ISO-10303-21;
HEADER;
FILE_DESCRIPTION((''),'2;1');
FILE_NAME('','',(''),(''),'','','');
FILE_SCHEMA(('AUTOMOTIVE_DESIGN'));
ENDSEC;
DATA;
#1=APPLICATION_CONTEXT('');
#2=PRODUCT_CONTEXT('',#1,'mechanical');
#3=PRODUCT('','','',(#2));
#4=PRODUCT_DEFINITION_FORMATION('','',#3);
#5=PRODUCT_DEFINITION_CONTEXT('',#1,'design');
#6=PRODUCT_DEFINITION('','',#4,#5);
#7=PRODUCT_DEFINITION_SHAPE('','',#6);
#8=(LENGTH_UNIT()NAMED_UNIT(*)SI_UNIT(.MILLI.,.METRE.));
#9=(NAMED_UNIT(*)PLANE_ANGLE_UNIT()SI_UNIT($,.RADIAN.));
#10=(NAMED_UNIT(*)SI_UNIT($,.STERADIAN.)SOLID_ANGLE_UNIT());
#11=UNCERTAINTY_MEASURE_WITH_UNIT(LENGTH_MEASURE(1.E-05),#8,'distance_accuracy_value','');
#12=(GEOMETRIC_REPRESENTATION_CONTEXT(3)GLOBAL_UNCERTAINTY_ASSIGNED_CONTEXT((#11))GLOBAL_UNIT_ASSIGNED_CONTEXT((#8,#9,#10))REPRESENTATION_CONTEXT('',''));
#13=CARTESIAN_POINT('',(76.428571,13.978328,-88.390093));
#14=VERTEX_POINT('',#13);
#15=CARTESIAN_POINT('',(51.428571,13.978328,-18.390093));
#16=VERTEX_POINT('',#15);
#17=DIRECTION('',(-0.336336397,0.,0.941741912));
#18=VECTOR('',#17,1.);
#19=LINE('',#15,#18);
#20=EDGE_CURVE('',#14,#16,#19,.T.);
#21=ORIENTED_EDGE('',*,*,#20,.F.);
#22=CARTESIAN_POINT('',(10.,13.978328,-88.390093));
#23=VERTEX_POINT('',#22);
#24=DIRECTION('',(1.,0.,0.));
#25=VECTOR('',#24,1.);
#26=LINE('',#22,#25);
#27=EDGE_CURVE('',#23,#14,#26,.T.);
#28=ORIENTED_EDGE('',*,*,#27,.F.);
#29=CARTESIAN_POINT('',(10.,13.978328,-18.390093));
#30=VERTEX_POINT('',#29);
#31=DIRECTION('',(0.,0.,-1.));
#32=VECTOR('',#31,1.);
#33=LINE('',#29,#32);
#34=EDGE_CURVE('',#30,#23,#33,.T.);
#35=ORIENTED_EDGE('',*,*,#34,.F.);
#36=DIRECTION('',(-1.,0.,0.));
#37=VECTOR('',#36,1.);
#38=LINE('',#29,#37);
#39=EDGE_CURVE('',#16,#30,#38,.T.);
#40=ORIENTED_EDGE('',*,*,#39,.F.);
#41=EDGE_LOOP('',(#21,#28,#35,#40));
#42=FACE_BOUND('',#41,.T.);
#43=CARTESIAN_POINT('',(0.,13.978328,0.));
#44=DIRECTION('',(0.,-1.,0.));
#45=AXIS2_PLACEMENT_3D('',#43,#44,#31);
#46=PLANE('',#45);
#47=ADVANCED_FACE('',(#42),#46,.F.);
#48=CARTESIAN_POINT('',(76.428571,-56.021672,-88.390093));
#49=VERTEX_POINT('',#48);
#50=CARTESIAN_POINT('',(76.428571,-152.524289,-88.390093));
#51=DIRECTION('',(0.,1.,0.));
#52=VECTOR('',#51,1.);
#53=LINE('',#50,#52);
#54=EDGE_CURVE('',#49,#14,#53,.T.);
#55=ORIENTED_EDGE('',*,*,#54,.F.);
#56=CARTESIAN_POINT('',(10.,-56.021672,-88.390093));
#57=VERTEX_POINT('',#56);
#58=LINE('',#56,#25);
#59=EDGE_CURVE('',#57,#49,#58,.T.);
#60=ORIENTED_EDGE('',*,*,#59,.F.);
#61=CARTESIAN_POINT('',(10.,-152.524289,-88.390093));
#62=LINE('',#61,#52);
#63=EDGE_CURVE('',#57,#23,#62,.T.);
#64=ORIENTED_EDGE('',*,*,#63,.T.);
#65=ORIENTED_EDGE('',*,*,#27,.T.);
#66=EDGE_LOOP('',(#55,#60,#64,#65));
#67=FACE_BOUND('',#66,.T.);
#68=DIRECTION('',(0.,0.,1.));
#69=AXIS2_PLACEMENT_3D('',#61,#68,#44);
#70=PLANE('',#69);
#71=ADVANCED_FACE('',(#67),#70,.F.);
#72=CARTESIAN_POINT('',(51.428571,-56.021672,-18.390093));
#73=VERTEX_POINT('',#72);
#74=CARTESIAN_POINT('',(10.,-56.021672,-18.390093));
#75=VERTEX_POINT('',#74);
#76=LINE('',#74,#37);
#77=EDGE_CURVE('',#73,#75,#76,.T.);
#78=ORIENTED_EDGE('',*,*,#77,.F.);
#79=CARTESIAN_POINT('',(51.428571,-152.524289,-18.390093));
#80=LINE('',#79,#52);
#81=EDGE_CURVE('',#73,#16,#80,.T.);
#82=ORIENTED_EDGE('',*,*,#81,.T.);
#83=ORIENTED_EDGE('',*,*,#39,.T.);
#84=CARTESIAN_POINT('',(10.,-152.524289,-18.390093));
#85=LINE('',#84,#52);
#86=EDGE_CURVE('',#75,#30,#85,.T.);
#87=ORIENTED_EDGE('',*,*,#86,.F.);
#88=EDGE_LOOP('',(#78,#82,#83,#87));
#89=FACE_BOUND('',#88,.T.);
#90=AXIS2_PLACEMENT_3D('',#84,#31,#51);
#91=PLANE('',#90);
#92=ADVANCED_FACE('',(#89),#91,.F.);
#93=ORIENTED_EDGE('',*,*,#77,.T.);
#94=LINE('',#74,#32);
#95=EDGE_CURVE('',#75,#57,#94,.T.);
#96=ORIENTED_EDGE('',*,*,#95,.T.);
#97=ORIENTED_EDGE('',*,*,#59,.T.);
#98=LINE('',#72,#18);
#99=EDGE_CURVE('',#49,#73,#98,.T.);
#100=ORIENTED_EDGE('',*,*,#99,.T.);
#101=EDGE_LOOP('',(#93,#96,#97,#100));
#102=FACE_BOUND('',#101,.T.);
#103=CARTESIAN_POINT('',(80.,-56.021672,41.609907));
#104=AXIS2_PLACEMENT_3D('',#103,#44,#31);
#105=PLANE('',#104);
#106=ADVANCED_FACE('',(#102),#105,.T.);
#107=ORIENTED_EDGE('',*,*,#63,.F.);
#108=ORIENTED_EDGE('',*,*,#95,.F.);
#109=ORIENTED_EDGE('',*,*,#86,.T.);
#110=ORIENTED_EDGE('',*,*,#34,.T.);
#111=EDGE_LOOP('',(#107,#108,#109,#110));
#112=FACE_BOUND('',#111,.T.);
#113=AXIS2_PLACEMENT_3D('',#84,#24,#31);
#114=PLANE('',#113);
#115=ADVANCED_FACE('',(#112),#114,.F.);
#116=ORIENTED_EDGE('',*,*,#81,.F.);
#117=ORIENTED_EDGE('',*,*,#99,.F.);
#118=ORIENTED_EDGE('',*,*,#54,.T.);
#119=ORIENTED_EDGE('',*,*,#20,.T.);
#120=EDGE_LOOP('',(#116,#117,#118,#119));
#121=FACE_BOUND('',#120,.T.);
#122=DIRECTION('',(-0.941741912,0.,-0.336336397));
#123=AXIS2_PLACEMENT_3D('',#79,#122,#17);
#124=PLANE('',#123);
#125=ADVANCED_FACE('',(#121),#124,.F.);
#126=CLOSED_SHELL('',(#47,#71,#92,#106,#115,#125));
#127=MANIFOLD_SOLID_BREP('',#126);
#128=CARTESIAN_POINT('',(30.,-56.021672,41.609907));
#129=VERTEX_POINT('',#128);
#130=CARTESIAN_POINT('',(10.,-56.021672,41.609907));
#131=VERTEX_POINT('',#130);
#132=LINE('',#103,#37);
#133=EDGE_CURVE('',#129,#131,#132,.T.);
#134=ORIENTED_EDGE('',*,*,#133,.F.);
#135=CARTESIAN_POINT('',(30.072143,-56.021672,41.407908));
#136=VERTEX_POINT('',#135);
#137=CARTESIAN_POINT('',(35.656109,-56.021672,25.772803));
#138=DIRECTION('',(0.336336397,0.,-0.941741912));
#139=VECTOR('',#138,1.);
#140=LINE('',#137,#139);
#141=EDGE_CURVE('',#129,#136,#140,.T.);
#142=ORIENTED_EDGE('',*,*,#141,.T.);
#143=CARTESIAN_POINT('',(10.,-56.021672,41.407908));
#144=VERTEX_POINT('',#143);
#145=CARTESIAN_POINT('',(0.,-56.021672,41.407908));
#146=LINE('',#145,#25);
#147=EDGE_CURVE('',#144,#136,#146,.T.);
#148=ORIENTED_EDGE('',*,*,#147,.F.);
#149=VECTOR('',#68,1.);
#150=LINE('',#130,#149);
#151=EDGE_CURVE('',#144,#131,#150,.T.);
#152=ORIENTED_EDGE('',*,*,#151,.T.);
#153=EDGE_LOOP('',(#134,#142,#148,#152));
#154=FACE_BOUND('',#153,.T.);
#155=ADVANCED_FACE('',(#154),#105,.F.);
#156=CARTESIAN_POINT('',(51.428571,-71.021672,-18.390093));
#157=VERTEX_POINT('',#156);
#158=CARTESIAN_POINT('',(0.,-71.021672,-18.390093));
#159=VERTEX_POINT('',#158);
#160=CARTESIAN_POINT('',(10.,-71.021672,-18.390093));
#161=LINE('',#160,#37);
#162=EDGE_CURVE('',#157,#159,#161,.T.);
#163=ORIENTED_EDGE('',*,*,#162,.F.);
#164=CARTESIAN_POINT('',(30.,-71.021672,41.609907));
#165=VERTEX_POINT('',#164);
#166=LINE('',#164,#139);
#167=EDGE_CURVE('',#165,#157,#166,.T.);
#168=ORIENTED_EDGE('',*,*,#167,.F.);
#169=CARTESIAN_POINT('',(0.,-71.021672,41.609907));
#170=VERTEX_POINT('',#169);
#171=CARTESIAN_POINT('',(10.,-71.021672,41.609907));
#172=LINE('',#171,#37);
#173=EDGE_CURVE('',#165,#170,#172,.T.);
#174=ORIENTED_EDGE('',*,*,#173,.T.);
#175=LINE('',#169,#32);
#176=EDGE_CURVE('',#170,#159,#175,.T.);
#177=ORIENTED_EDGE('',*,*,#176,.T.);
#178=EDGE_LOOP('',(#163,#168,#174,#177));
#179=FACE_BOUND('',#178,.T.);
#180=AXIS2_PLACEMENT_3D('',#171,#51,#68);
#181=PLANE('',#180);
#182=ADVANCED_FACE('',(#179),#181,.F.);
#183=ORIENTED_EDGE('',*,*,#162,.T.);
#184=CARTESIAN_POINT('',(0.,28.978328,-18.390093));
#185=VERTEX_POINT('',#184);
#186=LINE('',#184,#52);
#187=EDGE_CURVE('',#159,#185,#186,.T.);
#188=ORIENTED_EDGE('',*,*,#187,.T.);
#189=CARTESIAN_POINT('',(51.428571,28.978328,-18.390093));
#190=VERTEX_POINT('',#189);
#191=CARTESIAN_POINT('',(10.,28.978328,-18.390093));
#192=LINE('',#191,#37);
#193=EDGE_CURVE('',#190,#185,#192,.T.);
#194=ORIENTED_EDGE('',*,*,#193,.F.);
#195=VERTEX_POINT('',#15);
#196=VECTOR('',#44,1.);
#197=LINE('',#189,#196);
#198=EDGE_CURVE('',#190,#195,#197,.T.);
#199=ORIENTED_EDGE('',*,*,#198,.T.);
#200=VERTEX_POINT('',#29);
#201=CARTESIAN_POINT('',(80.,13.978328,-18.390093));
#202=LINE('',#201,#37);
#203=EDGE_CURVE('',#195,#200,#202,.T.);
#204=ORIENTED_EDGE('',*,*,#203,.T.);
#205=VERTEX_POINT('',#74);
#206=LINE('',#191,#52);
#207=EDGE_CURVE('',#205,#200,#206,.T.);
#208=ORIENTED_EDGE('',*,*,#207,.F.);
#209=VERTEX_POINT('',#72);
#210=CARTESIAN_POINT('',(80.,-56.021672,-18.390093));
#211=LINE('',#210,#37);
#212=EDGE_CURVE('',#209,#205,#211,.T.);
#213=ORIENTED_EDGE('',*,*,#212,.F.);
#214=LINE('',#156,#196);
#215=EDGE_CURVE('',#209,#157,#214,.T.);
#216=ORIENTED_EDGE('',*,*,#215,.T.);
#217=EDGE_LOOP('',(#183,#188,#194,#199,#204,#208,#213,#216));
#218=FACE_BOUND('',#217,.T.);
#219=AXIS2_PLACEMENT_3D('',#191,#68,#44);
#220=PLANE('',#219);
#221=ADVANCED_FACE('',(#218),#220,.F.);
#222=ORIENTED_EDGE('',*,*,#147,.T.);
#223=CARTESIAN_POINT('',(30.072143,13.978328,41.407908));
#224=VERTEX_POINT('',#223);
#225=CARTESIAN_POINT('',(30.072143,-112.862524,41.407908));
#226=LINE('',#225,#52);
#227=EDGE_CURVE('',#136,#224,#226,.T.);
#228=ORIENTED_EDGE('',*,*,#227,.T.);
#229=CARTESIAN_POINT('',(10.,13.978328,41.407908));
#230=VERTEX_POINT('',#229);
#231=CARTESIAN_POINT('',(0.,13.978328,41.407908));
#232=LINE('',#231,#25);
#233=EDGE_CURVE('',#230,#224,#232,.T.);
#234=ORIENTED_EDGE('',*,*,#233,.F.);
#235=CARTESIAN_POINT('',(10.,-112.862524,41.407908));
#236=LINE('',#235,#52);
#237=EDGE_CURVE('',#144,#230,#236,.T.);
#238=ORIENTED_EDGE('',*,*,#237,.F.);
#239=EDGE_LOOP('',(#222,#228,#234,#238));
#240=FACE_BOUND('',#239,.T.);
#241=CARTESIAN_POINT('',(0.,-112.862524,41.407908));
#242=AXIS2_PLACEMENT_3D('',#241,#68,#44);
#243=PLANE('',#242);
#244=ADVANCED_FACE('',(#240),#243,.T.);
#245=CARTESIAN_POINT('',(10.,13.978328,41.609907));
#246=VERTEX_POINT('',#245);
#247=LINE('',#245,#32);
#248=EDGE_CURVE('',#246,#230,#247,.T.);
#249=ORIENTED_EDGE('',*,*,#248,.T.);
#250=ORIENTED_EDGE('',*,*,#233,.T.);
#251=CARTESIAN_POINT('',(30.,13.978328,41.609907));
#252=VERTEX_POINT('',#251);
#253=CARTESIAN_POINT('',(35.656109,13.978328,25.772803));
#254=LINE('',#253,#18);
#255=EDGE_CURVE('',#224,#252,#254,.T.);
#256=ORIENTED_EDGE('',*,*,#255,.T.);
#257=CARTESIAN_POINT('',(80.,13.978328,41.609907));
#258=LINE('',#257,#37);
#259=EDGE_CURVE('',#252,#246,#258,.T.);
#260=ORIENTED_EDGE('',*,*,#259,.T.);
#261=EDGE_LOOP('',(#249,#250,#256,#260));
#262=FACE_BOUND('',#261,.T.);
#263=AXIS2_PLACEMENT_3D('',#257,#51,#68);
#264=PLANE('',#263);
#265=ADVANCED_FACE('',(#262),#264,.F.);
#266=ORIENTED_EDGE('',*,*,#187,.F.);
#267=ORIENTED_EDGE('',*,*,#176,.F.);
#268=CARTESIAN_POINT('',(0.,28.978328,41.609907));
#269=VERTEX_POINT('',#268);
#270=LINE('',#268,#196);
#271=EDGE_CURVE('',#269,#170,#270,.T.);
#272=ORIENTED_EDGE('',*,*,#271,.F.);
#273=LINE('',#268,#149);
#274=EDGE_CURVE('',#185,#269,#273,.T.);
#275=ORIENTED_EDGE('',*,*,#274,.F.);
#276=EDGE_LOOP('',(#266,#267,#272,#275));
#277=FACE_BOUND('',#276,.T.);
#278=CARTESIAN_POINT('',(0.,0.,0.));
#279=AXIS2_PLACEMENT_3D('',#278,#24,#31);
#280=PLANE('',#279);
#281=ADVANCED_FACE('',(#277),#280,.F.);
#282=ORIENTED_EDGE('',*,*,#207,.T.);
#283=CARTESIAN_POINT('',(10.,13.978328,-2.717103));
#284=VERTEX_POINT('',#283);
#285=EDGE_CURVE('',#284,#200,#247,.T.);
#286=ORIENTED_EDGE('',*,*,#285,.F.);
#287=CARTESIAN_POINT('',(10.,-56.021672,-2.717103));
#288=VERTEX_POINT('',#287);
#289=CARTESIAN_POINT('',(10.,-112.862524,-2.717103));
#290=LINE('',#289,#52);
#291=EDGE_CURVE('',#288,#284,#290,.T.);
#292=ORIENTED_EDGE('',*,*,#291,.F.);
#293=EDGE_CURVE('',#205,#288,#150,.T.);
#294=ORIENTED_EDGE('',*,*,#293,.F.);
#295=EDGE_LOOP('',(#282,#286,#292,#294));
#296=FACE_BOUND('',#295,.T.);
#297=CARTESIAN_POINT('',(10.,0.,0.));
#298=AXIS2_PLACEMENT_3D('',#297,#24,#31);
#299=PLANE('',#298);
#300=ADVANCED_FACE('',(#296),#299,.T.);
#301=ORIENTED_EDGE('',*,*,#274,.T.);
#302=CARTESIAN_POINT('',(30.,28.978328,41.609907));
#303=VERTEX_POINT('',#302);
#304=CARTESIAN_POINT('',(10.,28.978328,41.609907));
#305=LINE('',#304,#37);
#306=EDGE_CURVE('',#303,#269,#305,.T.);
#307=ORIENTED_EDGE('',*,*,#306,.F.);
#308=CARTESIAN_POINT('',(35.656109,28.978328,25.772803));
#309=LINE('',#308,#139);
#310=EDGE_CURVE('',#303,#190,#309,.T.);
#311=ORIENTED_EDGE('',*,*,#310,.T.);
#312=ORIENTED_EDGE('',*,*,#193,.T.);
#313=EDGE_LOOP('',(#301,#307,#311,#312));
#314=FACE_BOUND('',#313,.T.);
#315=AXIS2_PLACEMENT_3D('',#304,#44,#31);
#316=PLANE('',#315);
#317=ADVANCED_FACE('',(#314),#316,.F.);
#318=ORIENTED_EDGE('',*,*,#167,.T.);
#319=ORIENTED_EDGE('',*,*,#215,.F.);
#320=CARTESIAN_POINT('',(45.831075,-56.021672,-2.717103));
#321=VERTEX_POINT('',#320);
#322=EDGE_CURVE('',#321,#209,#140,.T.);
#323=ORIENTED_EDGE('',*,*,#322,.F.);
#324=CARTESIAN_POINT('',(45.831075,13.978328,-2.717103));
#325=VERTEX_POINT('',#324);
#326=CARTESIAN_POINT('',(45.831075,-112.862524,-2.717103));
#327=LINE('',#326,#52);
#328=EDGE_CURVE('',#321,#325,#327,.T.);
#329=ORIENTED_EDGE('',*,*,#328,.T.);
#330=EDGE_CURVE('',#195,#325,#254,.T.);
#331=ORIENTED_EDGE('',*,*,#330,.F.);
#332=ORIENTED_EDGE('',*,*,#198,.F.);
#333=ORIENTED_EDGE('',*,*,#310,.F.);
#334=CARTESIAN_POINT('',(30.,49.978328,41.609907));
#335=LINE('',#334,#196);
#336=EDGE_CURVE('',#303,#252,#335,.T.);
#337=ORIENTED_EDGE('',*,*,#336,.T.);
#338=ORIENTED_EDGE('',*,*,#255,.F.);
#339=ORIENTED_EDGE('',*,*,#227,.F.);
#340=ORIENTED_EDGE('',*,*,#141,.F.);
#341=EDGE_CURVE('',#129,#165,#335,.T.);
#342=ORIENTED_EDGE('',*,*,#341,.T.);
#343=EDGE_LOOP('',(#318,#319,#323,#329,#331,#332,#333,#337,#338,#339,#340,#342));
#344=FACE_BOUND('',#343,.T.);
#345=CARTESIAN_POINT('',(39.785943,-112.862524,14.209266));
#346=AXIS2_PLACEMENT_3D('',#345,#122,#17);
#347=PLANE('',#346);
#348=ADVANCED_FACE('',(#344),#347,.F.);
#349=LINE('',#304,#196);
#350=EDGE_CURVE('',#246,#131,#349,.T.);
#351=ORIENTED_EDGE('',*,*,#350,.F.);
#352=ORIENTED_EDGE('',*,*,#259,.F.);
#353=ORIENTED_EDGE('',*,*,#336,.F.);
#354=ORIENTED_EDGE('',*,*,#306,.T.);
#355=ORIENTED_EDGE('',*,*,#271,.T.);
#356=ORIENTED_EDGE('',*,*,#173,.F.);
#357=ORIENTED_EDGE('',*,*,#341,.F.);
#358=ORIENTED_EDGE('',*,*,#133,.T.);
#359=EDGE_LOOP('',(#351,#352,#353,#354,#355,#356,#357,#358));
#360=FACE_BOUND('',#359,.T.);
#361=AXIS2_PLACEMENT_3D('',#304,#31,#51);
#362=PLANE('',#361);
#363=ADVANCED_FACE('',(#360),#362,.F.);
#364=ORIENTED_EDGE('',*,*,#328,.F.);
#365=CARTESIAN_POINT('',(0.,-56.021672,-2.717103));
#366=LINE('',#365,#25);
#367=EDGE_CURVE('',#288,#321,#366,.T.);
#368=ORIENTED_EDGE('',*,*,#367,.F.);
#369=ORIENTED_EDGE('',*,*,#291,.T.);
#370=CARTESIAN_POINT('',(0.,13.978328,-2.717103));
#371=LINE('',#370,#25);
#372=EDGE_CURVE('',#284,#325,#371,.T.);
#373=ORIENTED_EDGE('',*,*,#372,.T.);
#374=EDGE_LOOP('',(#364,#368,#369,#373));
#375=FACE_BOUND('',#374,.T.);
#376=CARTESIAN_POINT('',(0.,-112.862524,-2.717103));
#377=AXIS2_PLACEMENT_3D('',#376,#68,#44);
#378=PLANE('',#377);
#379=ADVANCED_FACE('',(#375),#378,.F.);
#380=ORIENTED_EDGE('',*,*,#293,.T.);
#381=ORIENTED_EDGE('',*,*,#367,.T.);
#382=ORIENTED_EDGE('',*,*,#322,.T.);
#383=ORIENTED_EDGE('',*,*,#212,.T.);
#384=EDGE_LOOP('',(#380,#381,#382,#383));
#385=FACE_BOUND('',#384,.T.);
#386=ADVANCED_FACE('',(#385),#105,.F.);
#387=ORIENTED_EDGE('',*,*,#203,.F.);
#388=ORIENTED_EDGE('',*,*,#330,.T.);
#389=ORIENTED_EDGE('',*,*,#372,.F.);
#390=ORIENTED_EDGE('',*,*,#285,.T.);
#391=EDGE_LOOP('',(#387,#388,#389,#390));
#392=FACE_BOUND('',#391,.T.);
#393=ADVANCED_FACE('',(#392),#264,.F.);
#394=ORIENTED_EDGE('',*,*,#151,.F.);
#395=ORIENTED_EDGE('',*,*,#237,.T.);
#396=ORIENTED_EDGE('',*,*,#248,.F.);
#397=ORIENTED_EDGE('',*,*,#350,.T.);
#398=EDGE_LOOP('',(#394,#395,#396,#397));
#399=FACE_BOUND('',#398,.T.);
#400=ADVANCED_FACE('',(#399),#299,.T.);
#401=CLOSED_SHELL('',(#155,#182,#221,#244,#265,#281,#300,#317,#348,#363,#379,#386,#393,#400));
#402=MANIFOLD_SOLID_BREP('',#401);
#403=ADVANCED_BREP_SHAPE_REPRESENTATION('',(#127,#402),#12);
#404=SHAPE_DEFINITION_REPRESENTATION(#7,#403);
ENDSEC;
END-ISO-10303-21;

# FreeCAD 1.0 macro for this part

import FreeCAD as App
import Part
import Sketcher

V = App.Vector


def add_polygon(sketch, points):
    """Adds a closed chain of lines whose ends are joined by coincident constraints."""
    first, n = sketch.GeometryCount, len(points)
    for a, b in zip(points, points[1:] + points[:1]):
        sketch.addGeometry(Part.LineSegment(App.Vector(*a, 0), App.Vector(*b, 0)), False)
    for i in range(n):
        sketch.addConstraint(Sketcher.Constraint("Coincident", first + i, 2, first + (i + 1) % n, 1))

doc = App.newDocument("Part")
body = doc.addObject("PartDesign::Body", "Body")

sketch1 = body.newObject("Sketcher::SketchObject", "Sketch")
sketch1.AttachmentSupport = (doc.getObject("YZ_Plane"), [""])
sketch1.MapMode = "FlatFace"
add_polygon(sketch1, [(29, 42), (-71, 42), (-71, -18), (29, -18)])
sketch1.addConstraint([
    Sketcher.Constraint("Horizontal", 0),
    Sketcher.Constraint("Vertical", 1),
    Sketcher.Constraint("Horizontal", 2),
    Sketcher.Constraint("Vertical", 3),
    Sketcher.Constraint("DistanceX", 0, 2, 0, 1, 100.0),
    Sketcher.Constraint("DistanceY", 1, 2, 1, 1, 60.0),
    Sketcher.Constraint("DistanceX", 0, 2, -1, 1, 71.021672),
    Sketcher.Constraint("DistanceY", -1, 1, 0, 2, 41.609907),
])
pad1 = body.newObject("PartDesign::Pad", "Pad")
pad1.Profile = sketch1
pad1.Length = 10
body2 = doc.addObject("PartDesign::Body", "Body001")

sketch2 = body2.newObject("Sketcher::SketchObject", "Sketch001")
sketch2.AttachmentSupport = (doc.getObject("YZ_Plane001"), [""])
sketch2.MapMode = "FlatFace"
sketch2.AttachmentOffset = App.Placement(V(0, 0, 10), App.Rotation())
add_polygon(sketch2, [(29, 42), (14, 42), (14, -18), (29, -18)])
sketch2.addConstraint([
    Sketcher.Constraint("Horizontal", 0),
    Sketcher.Constraint("Vertical", 1),
    Sketcher.Constraint("Horizontal", 2),
    Sketcher.Constraint("Vertical", 3),
    Sketcher.Constraint("DistanceX", 0, 2, 0, 1, 15.0),
    Sketcher.Constraint("DistanceY", 1, 2, 1, 1, 60.0),
    Sketcher.Constraint("DistanceX", -1, 1, 0, 2, 13.978328),
    Sketcher.Constraint("DistanceY", -1, 1, 0, 2, 41.609907),
])
pad2 = body2.newObject("PartDesign::Pad", "Pad001")
pad2.Profile = sketch2
pad2.Length = 70
body3 = doc.addObject("PartDesign::Body", "Body002")

sketch3 = body3.newObject("Sketcher::SketchObject", "Sketch002")
sketch3.AttachmentSupport = (doc.getObject("YZ_Plane002"), [""])
sketch3.MapMode = "FlatFace"
sketch3.AttachmentOffset = App.Placement(V(0, 0, 10), App.Rotation())
add_polygon(sketch3, [(-56, 42), (-71, 42), (-71, -18), (-56, -18)])
sketch3.addConstraint([
    Sketcher.Constraint("Horizontal", 0),
    Sketcher.Constraint("Vertical", 1),
    Sketcher.Constraint("Horizontal", 2),
    Sketcher.Constraint("Vertical", 3),
    Sketcher.Constraint("DistanceX", 0, 2, 0, 1, 15.0),
    Sketcher.Constraint("DistanceY", 1, 2, 1, 1, 60.0),
    Sketcher.Constraint("DistanceX", 0, 2, -1, 1, 71.021672),
    Sketcher.Constraint("DistanceY", -1, 1, 0, 2, 41.609907),
])
pad3 = body3.newObject("PartDesign::Pad", "Pad002")
pad3.Profile = sketch3
pad3.Length = 70
body4 = doc.addObject("PartDesign::Body", "Body003")

sketch4 = body4.newObject("Sketcher::SketchObject", "Sketch003")
sketch4.AttachmentSupport = (doc.getObject("XZ_Plane003"), [""])
sketch4.MapMode = "FlatFace"
sketch4.AttachmentOffset = App.Placement(V(0, 0, 71.021672), App.Rotation())
add_polygon(sketch4, [(80, 42), (30, 42), (80, -98)])
sketch4.addConstraint([
    Sketcher.Constraint("Horizontal", 0),
    Sketcher.Constraint("Vertical", 2),
    Sketcher.Constraint("DistanceX", 0, 2, 0, 1, 50.0),
    Sketcher.Constraint("DistanceY", 2, 1, 2, 2, 140.0),
    Sketcher.Constraint("DistanceX", -1, 1, 0, 2, 30.0),
    Sketcher.Constraint("DistanceY", -1, 1, 0, 2, 41.609907),
])
pad4 = body4.newObject("PartDesign::Pad", "Pad003")
pad4.Profile = sketch4
pad4.Length = 121
pad4.Reversed = True
doc.recompute()

body5 = doc.addObject("PartDesign::Body", "Body004")
body5.BaseFeature = body4
boolean = body2.newObject("PartDesign::Boolean", "Boolean")
boolean.Type = "Cut"
boolean.addObjects([body5])
doc.recompute()

boolean2 = body3.newObject("PartDesign::Boolean", "Boolean001")
boolean2.Type = "Cut"
boolean2.addObjects([body4])
doc.recompute()

boolean3 = body.newObject("PartDesign::Boolean", "Boolean002")
boolean3.Type = "Fuse"
boolean3.addObjects([body2])
doc.recompute()

boolean4 = body.newObject("PartDesign::Boolean", "Boolean003")
boolean4.Type = "Fuse"
boolean4.addObjects([body3])

sketch5 = body.newObject("Sketcher::SketchObject", "Sketch004")
sketch5.AttachmentSupport = (doc.getObject("XZ_Plane"), [""])
sketch5.MapMode = "FlatFace"
sketch5.AttachmentOffset = App.Placement(V(0, 0, -13.978328), App.Rotation())
add_polygon(sketch5, [(30, 41), (10, 41), (10, -3), (46, -3)])
sketch5.addConstraint([
    Sketcher.Constraint("Horizontal", 0),
    Sketcher.Constraint("Vertical", 1),
    Sketcher.Constraint("Horizontal", 2),
    Sketcher.Constraint("DistanceX", -1, 1, 0, 2, 10.0),
    Sketcher.Constraint("DistanceY", 1, 2, 1, 1, 44.125011),
    Sketcher.Constraint("DistanceX", 0, 2, 0, 1, 20.072143),
    Sketcher.Constraint("DistanceX", 2, 1, 2, 2, 35.831075),
    Sketcher.Constraint("DistanceY", -1, 1, 0, 2, 41.407908),
])
pad5 = body.newObject("PartDesign::Pad", "Pad004")
pad5.Profile = sketch5
pad5.Length = 70
body6 = doc.addObject("PartDesign::Body", "Body005")

sketch6 = body6.newObject("Sketcher::SketchObject", "Sketch005")
sketch6.AttachmentSupport = (doc.getObject("XZ_Plane005"), [""])
sketch6.MapMode = "FlatFace"
sketch6.AttachmentOffset = App.Placement(V(0, 0, -13.978328), App.Rotation())
add_polygon(sketch6, [(76, -88), (51, -18), (10, -18), (10, -88)])
sketch6.addConstraint([
    Sketcher.Constraint("Horizontal", 1),
    Sketcher.Constraint("Vertical", 2),
    Sketcher.Constraint("Horizontal", 3),
    Sketcher.Constraint("DistanceY", 2, 2, 2, 1, 70.0),
    Sketcher.Constraint("DistanceX", -1, 1, 1, 2, 10.0),
    Sketcher.Constraint("DistanceX", 0, 2, 3, 2, 25.0),
    Sketcher.Constraint("DistanceX", 1, 2, 1, 1, 41.428571),
    Sketcher.Constraint("DistanceY", 0, 2, -1, 1, 18.390093),
])
pad6 = body6.newObject("PartDesign::Pad", "Pad005")
pad6.Profile = sketch6
pad6.Length = 70

doc.recompute()
